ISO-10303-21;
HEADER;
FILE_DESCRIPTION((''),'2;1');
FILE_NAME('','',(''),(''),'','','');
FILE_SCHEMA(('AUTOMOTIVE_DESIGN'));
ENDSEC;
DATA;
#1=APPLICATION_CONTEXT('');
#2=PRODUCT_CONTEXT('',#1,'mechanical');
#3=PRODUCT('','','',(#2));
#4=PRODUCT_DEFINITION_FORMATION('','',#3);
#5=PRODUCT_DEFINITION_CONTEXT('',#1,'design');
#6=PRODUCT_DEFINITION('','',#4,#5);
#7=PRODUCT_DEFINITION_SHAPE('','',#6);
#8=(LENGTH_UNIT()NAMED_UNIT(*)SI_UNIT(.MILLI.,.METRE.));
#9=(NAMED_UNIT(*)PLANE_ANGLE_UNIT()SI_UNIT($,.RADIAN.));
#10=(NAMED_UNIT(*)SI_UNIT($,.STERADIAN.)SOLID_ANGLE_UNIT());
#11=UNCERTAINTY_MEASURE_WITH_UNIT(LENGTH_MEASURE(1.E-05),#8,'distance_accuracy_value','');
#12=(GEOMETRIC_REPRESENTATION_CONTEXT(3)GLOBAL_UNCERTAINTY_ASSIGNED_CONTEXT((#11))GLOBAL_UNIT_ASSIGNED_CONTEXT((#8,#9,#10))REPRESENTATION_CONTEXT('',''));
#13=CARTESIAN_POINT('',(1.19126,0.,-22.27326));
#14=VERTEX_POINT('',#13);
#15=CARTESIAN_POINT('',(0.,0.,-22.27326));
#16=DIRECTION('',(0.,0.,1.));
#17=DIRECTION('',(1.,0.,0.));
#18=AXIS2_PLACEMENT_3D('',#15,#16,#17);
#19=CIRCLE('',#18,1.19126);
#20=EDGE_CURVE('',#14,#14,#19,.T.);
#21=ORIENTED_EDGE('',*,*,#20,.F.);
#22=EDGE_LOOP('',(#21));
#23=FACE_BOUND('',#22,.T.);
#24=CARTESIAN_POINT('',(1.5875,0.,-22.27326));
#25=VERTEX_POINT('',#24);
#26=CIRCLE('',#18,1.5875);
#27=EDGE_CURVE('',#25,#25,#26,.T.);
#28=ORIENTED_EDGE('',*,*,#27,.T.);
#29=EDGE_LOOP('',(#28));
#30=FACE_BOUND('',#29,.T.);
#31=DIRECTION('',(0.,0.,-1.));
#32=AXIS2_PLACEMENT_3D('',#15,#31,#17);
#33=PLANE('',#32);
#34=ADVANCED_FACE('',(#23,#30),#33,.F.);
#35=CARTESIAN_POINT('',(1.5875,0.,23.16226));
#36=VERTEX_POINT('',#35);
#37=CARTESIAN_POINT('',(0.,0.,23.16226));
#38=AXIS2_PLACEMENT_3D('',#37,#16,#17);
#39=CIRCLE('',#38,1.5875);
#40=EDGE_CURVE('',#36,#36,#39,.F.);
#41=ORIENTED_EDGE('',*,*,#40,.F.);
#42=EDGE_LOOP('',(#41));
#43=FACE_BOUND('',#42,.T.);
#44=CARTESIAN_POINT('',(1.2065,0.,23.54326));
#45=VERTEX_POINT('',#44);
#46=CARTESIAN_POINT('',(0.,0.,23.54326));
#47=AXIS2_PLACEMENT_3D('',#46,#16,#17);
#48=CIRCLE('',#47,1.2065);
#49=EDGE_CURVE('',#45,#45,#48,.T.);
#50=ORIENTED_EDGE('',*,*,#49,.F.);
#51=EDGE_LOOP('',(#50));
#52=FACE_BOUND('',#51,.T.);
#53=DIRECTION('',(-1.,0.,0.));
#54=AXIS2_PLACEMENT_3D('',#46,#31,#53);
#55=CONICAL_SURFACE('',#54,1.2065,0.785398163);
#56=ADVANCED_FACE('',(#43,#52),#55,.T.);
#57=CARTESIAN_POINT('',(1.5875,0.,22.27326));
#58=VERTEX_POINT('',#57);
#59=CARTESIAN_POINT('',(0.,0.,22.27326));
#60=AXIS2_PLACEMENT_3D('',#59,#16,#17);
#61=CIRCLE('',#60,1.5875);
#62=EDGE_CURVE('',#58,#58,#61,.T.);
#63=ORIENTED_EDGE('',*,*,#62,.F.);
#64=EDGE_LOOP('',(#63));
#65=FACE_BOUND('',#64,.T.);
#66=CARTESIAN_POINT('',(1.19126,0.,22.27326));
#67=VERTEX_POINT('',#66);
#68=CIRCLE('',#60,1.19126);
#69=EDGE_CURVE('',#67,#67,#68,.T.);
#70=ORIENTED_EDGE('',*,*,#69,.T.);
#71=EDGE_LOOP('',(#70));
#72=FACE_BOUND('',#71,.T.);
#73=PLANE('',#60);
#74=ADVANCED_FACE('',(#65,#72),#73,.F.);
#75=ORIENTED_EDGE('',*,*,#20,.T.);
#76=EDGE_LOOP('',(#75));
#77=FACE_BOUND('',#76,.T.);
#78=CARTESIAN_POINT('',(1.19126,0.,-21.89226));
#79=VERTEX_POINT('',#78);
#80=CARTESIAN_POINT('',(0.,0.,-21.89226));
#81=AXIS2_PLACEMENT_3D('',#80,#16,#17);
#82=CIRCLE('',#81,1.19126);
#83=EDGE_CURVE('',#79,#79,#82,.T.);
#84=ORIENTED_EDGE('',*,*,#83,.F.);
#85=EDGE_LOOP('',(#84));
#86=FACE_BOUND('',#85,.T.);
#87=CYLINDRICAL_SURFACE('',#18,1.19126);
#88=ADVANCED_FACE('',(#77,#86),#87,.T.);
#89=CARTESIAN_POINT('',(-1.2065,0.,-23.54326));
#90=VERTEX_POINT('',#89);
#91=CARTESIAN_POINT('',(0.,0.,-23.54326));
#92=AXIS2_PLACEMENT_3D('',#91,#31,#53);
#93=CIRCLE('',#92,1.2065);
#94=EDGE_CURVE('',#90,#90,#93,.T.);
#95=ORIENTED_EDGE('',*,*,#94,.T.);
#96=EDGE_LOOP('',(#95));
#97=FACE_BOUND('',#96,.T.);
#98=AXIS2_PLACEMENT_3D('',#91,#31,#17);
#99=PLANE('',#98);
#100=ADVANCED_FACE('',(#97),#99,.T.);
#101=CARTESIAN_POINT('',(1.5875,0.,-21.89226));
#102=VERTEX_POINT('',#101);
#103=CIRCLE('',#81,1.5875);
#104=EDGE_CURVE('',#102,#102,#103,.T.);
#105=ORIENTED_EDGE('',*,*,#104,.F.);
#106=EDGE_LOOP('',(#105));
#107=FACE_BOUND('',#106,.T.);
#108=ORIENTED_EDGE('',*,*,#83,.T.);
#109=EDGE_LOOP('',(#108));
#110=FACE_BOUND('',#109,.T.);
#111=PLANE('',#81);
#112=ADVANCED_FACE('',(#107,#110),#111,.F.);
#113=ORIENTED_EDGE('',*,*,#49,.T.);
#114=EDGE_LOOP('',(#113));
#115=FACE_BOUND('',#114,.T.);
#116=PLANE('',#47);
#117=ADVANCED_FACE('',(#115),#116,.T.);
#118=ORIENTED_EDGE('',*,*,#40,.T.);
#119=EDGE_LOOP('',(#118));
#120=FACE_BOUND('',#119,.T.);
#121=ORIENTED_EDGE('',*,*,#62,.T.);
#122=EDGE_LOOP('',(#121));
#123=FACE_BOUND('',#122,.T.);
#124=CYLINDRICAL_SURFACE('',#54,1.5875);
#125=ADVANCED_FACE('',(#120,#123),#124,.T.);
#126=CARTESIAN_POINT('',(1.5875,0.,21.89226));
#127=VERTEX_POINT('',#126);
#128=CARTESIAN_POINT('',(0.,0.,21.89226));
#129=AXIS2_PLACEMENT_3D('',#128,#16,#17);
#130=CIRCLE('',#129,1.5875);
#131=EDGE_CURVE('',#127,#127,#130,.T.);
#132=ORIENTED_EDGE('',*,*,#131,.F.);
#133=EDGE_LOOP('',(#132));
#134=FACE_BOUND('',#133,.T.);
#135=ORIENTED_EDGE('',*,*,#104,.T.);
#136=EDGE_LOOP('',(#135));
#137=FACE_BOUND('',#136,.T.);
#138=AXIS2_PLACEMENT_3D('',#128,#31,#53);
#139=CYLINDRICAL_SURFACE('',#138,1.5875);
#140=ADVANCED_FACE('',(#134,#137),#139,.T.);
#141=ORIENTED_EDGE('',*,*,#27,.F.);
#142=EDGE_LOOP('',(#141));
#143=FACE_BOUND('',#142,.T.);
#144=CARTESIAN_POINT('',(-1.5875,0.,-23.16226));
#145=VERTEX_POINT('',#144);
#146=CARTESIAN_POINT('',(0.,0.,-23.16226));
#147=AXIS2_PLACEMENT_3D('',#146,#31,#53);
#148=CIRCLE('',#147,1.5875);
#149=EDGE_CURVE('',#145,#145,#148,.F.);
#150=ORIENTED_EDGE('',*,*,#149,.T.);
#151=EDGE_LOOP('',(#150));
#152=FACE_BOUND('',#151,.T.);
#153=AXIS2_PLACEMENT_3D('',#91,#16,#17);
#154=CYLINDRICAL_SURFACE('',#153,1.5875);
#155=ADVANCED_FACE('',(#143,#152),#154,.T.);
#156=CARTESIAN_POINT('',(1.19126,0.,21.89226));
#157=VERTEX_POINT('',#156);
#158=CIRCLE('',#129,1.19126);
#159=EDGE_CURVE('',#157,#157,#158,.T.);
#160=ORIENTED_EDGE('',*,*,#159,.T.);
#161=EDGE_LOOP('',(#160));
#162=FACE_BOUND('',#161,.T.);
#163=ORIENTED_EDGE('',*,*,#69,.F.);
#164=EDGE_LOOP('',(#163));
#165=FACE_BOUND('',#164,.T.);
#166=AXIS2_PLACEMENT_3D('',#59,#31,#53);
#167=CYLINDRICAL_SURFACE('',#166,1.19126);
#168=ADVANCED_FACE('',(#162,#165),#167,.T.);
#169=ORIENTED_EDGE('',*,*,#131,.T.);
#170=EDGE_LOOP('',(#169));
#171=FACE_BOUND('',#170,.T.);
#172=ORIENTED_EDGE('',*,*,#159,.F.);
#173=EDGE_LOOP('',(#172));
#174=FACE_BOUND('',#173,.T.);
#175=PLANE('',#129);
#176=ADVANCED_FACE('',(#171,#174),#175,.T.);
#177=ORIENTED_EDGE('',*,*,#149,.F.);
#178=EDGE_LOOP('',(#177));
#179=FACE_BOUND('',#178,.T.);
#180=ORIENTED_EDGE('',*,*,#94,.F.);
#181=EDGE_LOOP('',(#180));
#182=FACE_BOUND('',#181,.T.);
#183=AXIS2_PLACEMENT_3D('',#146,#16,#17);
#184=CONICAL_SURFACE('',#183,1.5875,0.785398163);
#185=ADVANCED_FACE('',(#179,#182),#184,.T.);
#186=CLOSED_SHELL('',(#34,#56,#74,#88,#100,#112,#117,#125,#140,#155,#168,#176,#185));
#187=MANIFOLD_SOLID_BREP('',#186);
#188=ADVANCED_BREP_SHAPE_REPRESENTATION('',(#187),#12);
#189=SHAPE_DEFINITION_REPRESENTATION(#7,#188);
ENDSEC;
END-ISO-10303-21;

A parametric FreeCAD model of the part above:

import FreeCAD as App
import Part
import Sketcher

V = App.Vector
Q = App.Units.Quantity


def edges_at(feature, points):
    """Names of the edges that pass closest to the given points."""
    edges = feature.Shape.Edges
    near = lambda p: min(range(len(edges)), key=lambda i: edges[i].distToShape(Part.Vertex(*p))[0])
    return sorted({f"Edge{near(p) + 1}" for p in points})

doc = App.newDocument("Part")
body = doc.addObject("PartDesign::Body", "Body")

sketch1 = body.newObject("Sketcher::SketchObject", "Sketch")
sketch1.AttachmentSupport = (doc.getObject("XY_Plane"), [""])
sketch1.MapMode = "FlatFace"
sketch1.addGeometry(Part.Circle(V(0, 0, 0), V(0, 0, 1), 1.5875), False)
sketch1.addConstraint([
    Sketcher.Constraint("Coincident", 0, 3, -1, 1),
    Sketcher.Constraint("Diameter", 0, Q("0.125 in")),
])
pad1 = body.newObject("PartDesign::Pad", "Pad")
pad1.Profile = sketch1
pad1.Length = Q("1.7238 in")
pad1.Midplane = True

sketch2 = body.newObject("Sketcher::SketchObject", "Sketch001")
sketch2.AttachmentSupport = (doc.getObject("XY_Plane"), [""])
sketch2.MapMode = "FlatFace"
sketch2.AttachmentOffset = App.Placement(V(0, 0, 0.8619 * 25.4), App.Rotation())
sketch2.addGeometry(Part.Circle(V(0, 0, 0), V(0, 0, 1), 1.19126), False)
sketch2.addConstraint([
    Sketcher.Constraint("Coincident", 0, 3, -1, 1),
    Sketcher.Constraint("Diameter", 0, Q("0.0938 in")),
])
pad2 = body.newObject("PartDesign::Pad", "Pad001")
pad2.Profile = sketch2
pad2.Length = Q("0.015 in")

sketch3 = body.newObject("Sketcher::SketchObject", "Sketch002")
sketch3.AttachmentSupport = (doc.getObject("XY_Plane"), [""])
sketch3.MapMode = "FlatFace"
sketch3.AttachmentOffset = App.Placement(V(0, 0, 0.8769 * 25.4), App.Rotation())
sketch3.addGeometry(Part.Circle(V(0, 0, 0), V(0, 0, 1), 1.5875), False)
sketch3.addConstraint([
    Sketcher.Constraint("Coincident", 0, 3, -1, 1),
    Sketcher.Constraint("Diameter", 0, Q("0.125 in")),
])
pad3 = body.newObject("PartDesign::Pad", "Pad002")
pad3.Profile = sketch3
pad3.Length = Q("0.05 in")
doc.recompute()

chamfer = body.newObject("PartDesign::Chamfer", "Chamfer")
chamfer.Base = (pad3, edges_at(pad3, [(-1.587, 0, 23.543)]))
chamfer.Size = Q("0.015 in")
doc.recompute()

mirrored = body.newObject("PartDesign::Mirrored", "Mirrored")
mirrored.Originals = [pad2, pad3]
mirrored.MirrorPlane = (doc.getObject("XY_Plane"), [""])
body.Tip = mirrored
doc.recompute()

chamfer2 = body.newObject("PartDesign::Chamfer", "Chamfer001")
chamfer2.Base = (mirrored, edges_at(mirrored, [(-1.587, 0, -23.543)]))
chamfer2.Size = Q("0.015 in")

doc.recompute()
